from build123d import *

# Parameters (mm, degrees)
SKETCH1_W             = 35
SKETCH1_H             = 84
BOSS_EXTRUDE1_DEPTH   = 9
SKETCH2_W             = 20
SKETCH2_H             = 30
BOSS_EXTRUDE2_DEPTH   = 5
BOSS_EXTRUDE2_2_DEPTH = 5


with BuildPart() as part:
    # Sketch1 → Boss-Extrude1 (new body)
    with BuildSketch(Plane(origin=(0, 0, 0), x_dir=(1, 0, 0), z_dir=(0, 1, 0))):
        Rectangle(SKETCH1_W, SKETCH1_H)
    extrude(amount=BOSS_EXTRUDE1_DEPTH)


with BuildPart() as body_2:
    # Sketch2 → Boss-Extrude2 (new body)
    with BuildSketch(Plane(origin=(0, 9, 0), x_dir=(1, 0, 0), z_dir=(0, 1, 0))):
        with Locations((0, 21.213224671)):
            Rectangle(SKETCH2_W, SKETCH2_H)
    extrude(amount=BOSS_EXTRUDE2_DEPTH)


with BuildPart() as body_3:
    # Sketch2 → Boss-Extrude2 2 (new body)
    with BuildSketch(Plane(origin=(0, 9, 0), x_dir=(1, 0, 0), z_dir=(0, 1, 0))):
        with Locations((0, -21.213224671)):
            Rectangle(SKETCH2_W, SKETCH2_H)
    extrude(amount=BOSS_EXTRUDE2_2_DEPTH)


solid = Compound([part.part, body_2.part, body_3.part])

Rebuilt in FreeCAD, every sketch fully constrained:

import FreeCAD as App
import Part
import Sketcher
from FreeCAD import Vector

doc = App.newDocument("Part")
body = doc.addObject("PartDesign::Body", "Body")

sketch1 = doc.addObject("Sketcher::SketchObject", "Sketch")
body.addObject(sketch1)
sketch1.AttachmentSupport = (doc.XZ_Plane, [""])
sketch1.MapMode = "FlatFace"
sketch1.addGeometry(Part.LineSegment(Vector(-17.5, -42, 0), Vector(-17.5, 42, 0)), False)
sketch1.addGeometry(Part.LineSegment(Vector(-17.5, 42, 0), Vector(17.5, 42, 0)), False)
sketch1.addGeometry(Part.LineSegment(Vector(17.5, 42, 0), Vector(17.5, -42, 0)), False)
sketch1.addGeometry(Part.LineSegment(Vector(17.5, -42, 0), Vector(-17.5, -42, 0)), False)
sketch1.addConstraint(Sketcher.Constraint("Coincident", 0, 2, 1, 1))
sketch1.addConstraint(Sketcher.Constraint("Coincident", 1, 2, 2, 1))
sketch1.addConstraint(Sketcher.Constraint("Coincident", 2, 2, 3, 1))
sketch1.addConstraint(Sketcher.Constraint("Coincident", 3, 2, 0, 1))
sketch1.addConstraint(Sketcher.Constraint("Vertical", 0))
sketch1.addConstraint(Sketcher.Constraint("Horizontal", 1))
sketch1.addConstraint(Sketcher.Constraint("Vertical", 2))
sketch1.addConstraint(Sketcher.Constraint("Horizontal", 3))
sketch1.addConstraint(Sketcher.Constraint("Symmetric", 0, 2, 2, 2, -1, 1))
sketch1.addConstraint(Sketcher.Constraint("DistanceX", 1, 1, 1, 2, 35.0))
sketch1.addConstraint(Sketcher.Constraint("DistanceY", 0, 1, 0, 2, 84.0))
pad1 = doc.addObject("PartDesign::Pad", "Pad")
body.addObject(pad1)
pad1.Profile = sketch1
pad1.Length = 9
pad1.Reversed = True
body2 = doc.addObject("PartDesign::Body", "Body001")

sketch2 = doc.addObject("Sketcher::SketchObject", "Sketch001")
body2.addObject(sketch2)
sketch2.AttachmentSupport = (doc.getObject("XZ_Plane001"), [""])
sketch2.MapMode = "FlatFace"
sketch2.AttachmentOffset = App.Placement(Vector(0, 0, -9), App.Rotation())
sketch2.addGeometry(Part.LineSegment(Vector(-10, -36.213225, 0), Vector(-10, -6.213225, 0)), False)
sketch2.addGeometry(Part.LineSegment(Vector(-10, -6.213225, 0), Vector(10, -6.213225, 0)), False)
sketch2.addGeometry(Part.LineSegment(Vector(10, -6.213225, 0), Vector(10, -36.213225, 0)), False)
sketch2.addGeometry(Part.LineSegment(Vector(10, -36.213225, 0), Vector(-10, -36.213225, 0)), False)
sketch2.addConstraint(Sketcher.Constraint("Coincident", 0, 2, 1, 1))
sketch2.addConstraint(Sketcher.Constraint("Coincident", 1, 2, 2, 1))
sketch2.addConstraint(Sketcher.Constraint("Coincident", 2, 2, 3, 1))
sketch2.addConstraint(Sketcher.Constraint("Coincident", 3, 2, 0, 1))
sketch2.addConstraint(Sketcher.Constraint("Vertical", 0))
sketch2.addConstraint(Sketcher.Constraint("Horizontal", 1))
sketch2.addConstraint(Sketcher.Constraint("Vertical", 2))
sketch2.addConstraint(Sketcher.Constraint("Horizontal", 3))
sketch2.addConstraint(Sketcher.Constraint("DistanceX", 1, 1, 1, 2, 20.0))
sketch2.addConstraint(Sketcher.Constraint("DistanceY", 0, 1, 0, 2, 30.0))
sketch2.addConstraint(Sketcher.Constraint("DistanceX", 0, 2, -1, 1, 10.0))
sketch2.addConstraint(Sketcher.Constraint("DistanceY", 0, 2, -1, 1, 6.213225))
pad2 = doc.addObject("PartDesign::Pad", "Pad001")
body2.addObject(pad2)
pad2.Profile = sketch2
pad2.Length = 5
pad2.Reversed = True
body3 = doc.addObject("PartDesign::Body", "Body002")

sketch3 = doc.addObject("Sketcher::SketchObject", "Sketch002")
body3.addObject(sketch3)
sketch3.AttachmentSupport = (doc.getObject("XZ_Plane002"), [""])
sketch3.MapMode = "FlatFace"
sketch3.AttachmentOffset = App.Placement(Vector(0, 0, -9), App.Rotation())
sketch3.addGeometry(Part.LineSegment(Vector(-10, 6.213225, 0), Vector(-10, 36.213225, 0)), False)
sketch3.addGeometry(Part.LineSegment(Vector(-10, 36.213225, 0), Vector(10, 36.213225, 0)), False)
sketch3.addGeometry(Part.LineSegment(Vector(10, 36.213225, 0), Vector(10, 6.213225, 0)), False)
sketch3.addGeometry(Part.LineSegment(Vector(10, 6.213225, 0), Vector(-10, 6.213225, 0)), False)
sketch3.addConstraint(Sketcher.Constraint("Coincident", 0, 2, 1, 1))
sketch3.addConstraint(Sketcher.Constraint("Coincident", 1, 2, 2, 1))
sketch3.addConstraint(Sketcher.Constraint("Coincident", 2, 2, 3, 1))
sketch3.addConstraint(Sketcher.Constraint("Coincident", 3, 2, 0, 1))
sketch3.addConstraint(Sketcher.Constraint("Vertical", 0))
sketch3.addConstraint(Sketcher.Constraint("Horizontal", 1))
sketch3.addConstraint(Sketcher.Constraint("Vertical", 2))
sketch3.addConstraint(Sketcher.Constraint("Horizontal", 3))
sketch3.addConstraint(Sketcher.Constraint("DistanceX", 1, 1, 1, 2, 20.0))
sketch3.addConstraint(Sketcher.Constraint("DistanceY", 0, 1, 0, 2, 30.0))
sketch3.addConstraint(Sketcher.Constraint("DistanceX", 0, 2, -1, 1, 10.0))
sketch3.addConstraint(Sketcher.Constraint("DistanceY", -1, 1, 0, 2, 36.213225))
pad3 = doc.addObject("PartDesign::Pad", "Pad002")
body3.addObject(pad3)
pad3.Profile = sketch3
pad3.Length = 5
pad3.Reversed = True

doc.recompute()
